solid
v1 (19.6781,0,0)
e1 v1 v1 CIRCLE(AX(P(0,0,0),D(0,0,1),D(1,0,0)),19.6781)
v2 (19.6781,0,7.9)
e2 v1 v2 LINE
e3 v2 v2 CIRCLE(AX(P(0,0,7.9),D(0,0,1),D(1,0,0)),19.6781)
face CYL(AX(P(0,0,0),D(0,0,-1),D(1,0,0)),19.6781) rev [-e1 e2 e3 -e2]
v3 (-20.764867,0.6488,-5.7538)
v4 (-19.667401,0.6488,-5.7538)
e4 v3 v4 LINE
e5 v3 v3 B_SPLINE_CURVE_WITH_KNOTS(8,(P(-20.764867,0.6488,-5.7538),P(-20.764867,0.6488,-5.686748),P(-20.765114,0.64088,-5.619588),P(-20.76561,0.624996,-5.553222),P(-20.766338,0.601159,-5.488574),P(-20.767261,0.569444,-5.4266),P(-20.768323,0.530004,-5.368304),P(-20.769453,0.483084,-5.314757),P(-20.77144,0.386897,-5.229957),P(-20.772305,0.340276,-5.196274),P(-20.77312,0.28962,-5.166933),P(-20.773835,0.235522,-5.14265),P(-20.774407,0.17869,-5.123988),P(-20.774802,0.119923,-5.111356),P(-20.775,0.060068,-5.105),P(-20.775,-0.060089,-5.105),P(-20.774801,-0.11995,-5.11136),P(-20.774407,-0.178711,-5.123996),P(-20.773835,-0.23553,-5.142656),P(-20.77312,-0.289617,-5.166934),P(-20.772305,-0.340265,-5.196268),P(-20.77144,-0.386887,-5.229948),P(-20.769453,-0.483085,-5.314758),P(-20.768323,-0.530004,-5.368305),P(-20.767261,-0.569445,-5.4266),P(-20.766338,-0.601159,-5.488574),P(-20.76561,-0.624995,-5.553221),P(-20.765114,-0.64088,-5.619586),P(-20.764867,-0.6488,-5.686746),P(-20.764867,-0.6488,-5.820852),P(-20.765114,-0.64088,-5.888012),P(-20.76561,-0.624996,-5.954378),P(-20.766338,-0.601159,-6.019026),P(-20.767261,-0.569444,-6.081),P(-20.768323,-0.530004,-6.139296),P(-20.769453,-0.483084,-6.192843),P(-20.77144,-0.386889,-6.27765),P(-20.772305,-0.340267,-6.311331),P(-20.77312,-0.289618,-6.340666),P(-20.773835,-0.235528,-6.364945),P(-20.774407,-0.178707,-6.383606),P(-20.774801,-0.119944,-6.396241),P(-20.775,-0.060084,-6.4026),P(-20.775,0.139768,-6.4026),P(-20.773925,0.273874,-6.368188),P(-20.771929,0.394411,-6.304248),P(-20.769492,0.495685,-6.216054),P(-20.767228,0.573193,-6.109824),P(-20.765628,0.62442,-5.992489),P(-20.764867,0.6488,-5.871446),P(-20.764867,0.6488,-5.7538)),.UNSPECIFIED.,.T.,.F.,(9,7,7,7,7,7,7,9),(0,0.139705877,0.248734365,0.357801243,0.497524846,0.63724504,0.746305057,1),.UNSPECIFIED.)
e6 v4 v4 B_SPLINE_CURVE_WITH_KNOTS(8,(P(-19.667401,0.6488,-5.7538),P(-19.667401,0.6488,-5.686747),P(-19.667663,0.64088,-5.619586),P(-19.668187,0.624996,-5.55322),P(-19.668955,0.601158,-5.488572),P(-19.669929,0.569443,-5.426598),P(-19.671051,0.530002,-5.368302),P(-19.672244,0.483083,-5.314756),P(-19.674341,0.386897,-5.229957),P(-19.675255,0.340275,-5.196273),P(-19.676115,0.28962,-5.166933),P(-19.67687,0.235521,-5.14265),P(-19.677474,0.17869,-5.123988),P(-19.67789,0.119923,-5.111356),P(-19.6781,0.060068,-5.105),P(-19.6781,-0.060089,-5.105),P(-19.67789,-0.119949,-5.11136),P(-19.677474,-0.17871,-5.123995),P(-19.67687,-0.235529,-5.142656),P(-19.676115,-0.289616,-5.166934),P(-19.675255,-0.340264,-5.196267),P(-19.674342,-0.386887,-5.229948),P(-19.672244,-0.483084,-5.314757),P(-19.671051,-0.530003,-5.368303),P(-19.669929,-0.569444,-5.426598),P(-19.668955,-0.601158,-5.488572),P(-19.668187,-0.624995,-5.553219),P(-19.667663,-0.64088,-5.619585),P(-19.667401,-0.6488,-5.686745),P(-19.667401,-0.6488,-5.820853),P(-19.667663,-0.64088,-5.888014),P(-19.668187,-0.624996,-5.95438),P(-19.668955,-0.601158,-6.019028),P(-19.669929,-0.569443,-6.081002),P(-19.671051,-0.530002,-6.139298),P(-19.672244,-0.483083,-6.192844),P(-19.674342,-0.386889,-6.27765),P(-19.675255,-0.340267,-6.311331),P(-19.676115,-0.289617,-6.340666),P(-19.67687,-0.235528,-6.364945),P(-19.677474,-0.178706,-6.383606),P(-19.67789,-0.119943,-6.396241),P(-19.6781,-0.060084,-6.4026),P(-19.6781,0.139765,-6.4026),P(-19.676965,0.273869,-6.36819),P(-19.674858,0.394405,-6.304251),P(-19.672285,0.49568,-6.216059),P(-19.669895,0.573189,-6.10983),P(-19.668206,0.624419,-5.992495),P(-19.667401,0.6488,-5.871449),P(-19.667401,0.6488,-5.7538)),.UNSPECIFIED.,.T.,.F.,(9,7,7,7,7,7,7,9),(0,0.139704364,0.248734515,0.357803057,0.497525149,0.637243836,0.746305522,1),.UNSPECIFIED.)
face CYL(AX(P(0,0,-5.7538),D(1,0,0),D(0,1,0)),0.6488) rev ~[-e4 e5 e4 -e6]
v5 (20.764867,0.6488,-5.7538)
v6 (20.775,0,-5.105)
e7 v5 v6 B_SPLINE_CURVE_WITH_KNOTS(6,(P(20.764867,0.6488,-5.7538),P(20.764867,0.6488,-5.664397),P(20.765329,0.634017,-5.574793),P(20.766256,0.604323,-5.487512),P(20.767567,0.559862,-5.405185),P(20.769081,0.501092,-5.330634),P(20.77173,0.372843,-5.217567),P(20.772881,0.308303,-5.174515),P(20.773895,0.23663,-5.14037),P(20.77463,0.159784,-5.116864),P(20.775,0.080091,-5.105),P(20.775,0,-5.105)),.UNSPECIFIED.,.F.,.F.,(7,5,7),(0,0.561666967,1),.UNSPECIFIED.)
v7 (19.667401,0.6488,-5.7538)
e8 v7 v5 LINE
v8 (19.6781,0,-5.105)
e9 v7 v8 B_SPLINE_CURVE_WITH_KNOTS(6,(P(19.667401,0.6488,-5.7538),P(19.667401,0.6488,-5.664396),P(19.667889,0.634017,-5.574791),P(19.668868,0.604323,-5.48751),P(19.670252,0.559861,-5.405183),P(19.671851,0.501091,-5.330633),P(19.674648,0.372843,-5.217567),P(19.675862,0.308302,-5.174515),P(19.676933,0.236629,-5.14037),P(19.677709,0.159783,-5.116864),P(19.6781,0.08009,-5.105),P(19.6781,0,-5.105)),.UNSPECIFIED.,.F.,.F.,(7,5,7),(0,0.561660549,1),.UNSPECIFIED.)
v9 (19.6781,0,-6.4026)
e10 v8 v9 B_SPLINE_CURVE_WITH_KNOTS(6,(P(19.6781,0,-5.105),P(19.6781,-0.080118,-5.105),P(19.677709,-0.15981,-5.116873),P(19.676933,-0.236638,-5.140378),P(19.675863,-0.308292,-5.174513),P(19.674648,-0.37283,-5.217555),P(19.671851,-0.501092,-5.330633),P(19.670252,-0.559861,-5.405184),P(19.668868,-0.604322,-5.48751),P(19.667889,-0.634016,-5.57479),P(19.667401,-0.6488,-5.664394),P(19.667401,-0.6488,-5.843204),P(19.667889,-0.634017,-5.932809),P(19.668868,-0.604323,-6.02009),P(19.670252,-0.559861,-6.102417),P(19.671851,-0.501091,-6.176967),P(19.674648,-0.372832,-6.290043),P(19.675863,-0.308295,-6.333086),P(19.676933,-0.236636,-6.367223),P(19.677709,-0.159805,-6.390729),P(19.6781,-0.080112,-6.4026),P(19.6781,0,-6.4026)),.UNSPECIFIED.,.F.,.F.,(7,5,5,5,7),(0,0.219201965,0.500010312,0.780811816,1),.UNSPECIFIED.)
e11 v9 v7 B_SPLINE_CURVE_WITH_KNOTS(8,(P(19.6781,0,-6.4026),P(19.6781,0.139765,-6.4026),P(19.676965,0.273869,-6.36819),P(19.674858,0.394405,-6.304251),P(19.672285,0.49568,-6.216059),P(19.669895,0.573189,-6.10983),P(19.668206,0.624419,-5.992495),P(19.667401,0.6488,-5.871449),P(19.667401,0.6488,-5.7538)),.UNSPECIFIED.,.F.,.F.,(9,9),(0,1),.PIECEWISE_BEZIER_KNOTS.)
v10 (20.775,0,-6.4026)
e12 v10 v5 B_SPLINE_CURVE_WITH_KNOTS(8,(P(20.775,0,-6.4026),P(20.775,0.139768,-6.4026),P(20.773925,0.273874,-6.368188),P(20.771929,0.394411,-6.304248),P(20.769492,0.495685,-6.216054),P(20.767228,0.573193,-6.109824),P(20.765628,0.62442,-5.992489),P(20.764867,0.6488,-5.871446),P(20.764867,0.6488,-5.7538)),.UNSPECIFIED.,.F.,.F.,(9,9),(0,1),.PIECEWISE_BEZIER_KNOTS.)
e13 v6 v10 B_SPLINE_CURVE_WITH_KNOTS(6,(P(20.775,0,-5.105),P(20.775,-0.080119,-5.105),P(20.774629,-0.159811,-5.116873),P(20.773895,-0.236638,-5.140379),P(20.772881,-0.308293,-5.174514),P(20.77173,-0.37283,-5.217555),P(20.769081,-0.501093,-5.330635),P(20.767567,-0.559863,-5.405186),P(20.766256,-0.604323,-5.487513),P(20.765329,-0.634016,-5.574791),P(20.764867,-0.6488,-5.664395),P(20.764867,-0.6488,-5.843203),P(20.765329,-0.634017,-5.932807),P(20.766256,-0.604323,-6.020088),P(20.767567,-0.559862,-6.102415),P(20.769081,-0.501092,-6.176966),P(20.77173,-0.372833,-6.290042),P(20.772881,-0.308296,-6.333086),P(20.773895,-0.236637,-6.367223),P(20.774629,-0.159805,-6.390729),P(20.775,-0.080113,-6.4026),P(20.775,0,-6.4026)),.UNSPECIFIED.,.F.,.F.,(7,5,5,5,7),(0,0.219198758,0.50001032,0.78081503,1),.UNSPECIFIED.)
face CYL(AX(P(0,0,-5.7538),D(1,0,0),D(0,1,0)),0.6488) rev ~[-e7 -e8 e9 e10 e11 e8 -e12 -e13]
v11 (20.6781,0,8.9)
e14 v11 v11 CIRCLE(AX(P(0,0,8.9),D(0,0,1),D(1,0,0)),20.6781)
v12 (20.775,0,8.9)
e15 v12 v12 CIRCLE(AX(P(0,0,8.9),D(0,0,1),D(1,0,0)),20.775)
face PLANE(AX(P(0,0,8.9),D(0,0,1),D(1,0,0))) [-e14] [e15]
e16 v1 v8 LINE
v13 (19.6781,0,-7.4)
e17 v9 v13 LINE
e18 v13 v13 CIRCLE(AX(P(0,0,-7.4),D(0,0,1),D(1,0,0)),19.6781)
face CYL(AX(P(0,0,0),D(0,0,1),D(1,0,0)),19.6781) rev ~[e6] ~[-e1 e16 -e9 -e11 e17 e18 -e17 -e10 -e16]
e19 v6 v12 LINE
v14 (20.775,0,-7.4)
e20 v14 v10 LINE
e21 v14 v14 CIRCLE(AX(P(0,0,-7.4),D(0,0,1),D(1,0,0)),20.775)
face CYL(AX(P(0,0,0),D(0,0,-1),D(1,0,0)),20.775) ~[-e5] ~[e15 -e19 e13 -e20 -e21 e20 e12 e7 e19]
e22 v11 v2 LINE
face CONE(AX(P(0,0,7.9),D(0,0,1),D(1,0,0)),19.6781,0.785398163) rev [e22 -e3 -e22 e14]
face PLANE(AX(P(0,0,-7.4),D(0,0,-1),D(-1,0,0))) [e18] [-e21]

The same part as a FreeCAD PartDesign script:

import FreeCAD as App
import Part
import Sketcher


def edges_at(feature, points):
    """Names of the edges that pass closest to the given points."""
    edges = feature.Shape.Edges
    near = lambda p: min(range(len(edges)), key=lambda i: edges[i].distToShape(Part.Vertex(*p))[0])
    return sorted({f"Edge{near(p) + 1}" for p in points})

doc = App.newDocument("Part")
body = doc.addObject("PartDesign::Body", "Body")

sketch1 = body.newObject("Sketcher::SketchObject", "Sketch")
sketch1.AttachmentSupport = (doc.getObject("XY_Plane"), [""])
sketch1.MapMode = "FlatFace"
sketch1.addGeometry(Part.Circle(App.Vector(0, 0, 0), App.Vector(0, 0, 1), 20.775), False)
sketch1.addGeometry(Part.Circle(App.Vector(0, 0, 0), App.Vector(0, 0, 1), 19.6781), False)
sketch1.addConstraint(Sketcher.Constraint("Coincident", 0, 3, -1, 1))
sketch1.addConstraint(Sketcher.Constraint("Coincident", 1, 3, -1, 1))
sketch1.addConstraint(Sketcher.Constraint("Diameter", 0, 41.55))
sketch1.addConstraint(Sketcher.Constraint("Diameter", 1, 39.3562))
pad1 = body.newObject("PartDesign::Pad", "Pad")
pad1.Profile = sketch1
pad1.Length = 17.8
pad1.Midplane = True
doc.recompute()

chamfer = body.newObject("PartDesign::Chamfer", "Chamfer")
chamfer.Base = (pad1, edges_at(pad1, [(-19.678, 0, 8.9)]))
chamfer.Size = 1

sketch2 = body.newObject("Sketcher::SketchObject", "Sketch001")
sketch2.AttachmentSupport = (doc.getObject("XY_Plane"), [""])
sketch2.MapMode = "FlatFace"
sketch2.AttachmentOffset = App.Placement(App.Vector(0, 0, -8.9), App.Rotation())
sketch2.addGeometry(Part.Circle(App.Vector(0, 0, 0), App.Vector(0, 0, 1), 21.8479), False)
sketch2.addConstraint(Sketcher.Constraint("Coincident", 0, 3, -1, 1))
sketch2.addConstraint(Sketcher.Constraint("Diameter", 0, 43.6958))
pocket1 = body.newObject("PartDesign::Pocket", "Pocket")
pocket1.Profile = sketch2
pocket1.Length = 1.5
pocket1.Reversed = True

sketch3 = body.newObject("Sketcher::SketchObject", "Sketch002")
sketch3.AttachmentSupport = (doc.getObject("YZ_Plane"), [""])
sketch3.MapMode = "FlatFace"
sketch3.addGeometry(Part.Circle(App.Vector(0, -5.7538, 0), App.Vector(0, 0, 1), 0.6488), False)
sketch3.addConstraint(Sketcher.Constraint("PointOnObject", 0, 3, -2))
sketch3.addConstraint(Sketcher.Constraint("Diameter", 0, 1.2976))
sketch3.addConstraint(Sketcher.Constraint("DistanceY", 0, 3, -1, 1, 5.7538))
pocket2 = body.newObject("PartDesign::Pocket", "Pocket001")
pocket2.Profile = sketch3
pocket2.Length = 100
pocket2.Midplane = True

doc.recompute()
